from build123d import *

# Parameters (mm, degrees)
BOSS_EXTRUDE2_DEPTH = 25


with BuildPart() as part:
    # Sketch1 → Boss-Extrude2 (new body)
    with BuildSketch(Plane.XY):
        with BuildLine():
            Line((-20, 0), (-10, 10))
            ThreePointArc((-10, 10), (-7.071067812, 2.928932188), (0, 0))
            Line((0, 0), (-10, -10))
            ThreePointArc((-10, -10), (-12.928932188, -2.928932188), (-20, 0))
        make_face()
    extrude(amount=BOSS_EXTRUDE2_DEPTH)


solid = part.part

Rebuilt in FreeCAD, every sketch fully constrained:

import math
import FreeCAD as App
import Part
import Sketcher
from FreeCAD import Vector
Q = App.Units.Quantity

doc = App.newDocument("Part")
params = doc.addObject("Spreadsheet::Sheet", "Params")
for row, (alias, value) in enumerate([
    ("sketch1_radius", "10 mm"),
    ("pad1_length", "25 mm"),
], start=1):
    params.set(f"A{row}", alias)
    params.set(f"B{row}", "=" + value)
    params.setAlias(f"B{row}", alias)

body = doc.addObject("PartDesign::Body", "Body")

sketch1 = body.newObject("Sketcher::SketchObject", "Sketch")
sketch1.AttachmentSupport = (doc.getObject("XY_Plane"), [""])
sketch1.MapMode = "FlatFace"
sketch1.addGeometry([
    Part.LineSegment(Vector(-10, 10, 0), Vector(-20, 0, 0)),
    Part.ArcOfCircle(Part.Circle(Vector(-20, -10, 0), Vector(0, 0, 1), 10), math.radians(0), math.radians(90)),
    Part.LineSegment(Vector(-10, -10, 0), Vector(0, 0, 0)),
    Part.ArcOfCircle(Part.Circle(Vector(0, 10, 0), Vector(0, 0, 1), 10), math.radians(180), math.radians(270)),
], False)
sketch1.addConstraint([
    Sketcher.Constraint("Coincident", 0, 2, 1, 2),
    Sketcher.Constraint("Coincident", 1, 1, 2, 1),
    Sketcher.Constraint("Coincident", 2, 2, 3, 2),
    Sketcher.Constraint("Coincident", 3, 1, 0, 1),
    Sketcher.Constraint("Coincident", 2, 2, -1, 1),
    Sketcher.Constraint("Equal", 1, 3),
    Sketcher.Constraint("Symmetric", 1, 1, 3, 1, -1),
    Sketcher.Constraint("PointOnObject", 3, 3, -2),
    Sketcher.Constraint("PointOnObject", 0, 2, -1),
    Sketcher.Constraint("Parallel", 0, 2),
    Sketcher.Constraint("Radius", 1, 10.0),
    Sketcher.Constraint("Angle", 0, Q("-135 deg")),
])
sketch1.setExpression("Constraints[10]", "Params.sketch1_radius")
pad1 = body.newObject("PartDesign::Pad", "Pad")
pad1.Profile = sketch1
pad1.setExpression("Length", "Params.pad1_length")

doc.recompute()
